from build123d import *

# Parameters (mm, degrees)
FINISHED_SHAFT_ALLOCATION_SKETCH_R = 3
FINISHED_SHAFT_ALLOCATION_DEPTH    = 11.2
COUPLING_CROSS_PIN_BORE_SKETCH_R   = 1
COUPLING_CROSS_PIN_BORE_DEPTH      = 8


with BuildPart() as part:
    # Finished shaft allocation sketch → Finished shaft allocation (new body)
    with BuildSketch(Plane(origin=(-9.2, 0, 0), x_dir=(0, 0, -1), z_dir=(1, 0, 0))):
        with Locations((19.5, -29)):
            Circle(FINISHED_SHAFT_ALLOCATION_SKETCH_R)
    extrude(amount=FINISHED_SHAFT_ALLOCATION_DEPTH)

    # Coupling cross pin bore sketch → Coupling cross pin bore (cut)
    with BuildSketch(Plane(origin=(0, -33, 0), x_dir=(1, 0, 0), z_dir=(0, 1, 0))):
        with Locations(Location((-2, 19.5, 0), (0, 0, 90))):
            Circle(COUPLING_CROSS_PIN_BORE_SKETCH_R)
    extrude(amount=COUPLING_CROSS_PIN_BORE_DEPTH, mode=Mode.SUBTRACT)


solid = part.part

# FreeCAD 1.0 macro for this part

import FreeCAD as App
import Part
import Sketcher

V = App.Vector

doc = App.newDocument("Part")
params = doc.addObject("Spreadsheet::Sheet", "Params")
for row, (alias, value) in enumerate([
    ("sketch1_diameter", "6 mm"),
    ("pad1_length", "11.2 mm"),
    ("sketch2_diameter", "2 mm"),
    ("pocket1_length", "8 mm"),
], start=1):
    params.set(f"A{row}", alias)
    params.set(f"B{row}", "=" + value)
    params.setAlias(f"B{row}", alias)

body = doc.addObject("PartDesign::Body", "Body")

# Sketch on YZ plane
sketch1 = body.newObject("Sketcher::SketchObject", "Sketch")
sketch1.AttachmentSupport = (doc.getObject("YZ_Plane"), [""])
sketch1.MapMode = "FlatFace"
sketch1.AttachmentOffset = App.Placement(V(0, 0, -9.2), App.Rotation())
sketch1.addGeometry(Part.Circle(V(-29, -19.5, 0), V(0, 0, 1), 3), False)
sketch1.addConstraint([
    Sketcher.Constraint("Diameter", 0, 6.0),
    Sketcher.Constraint("DistanceX", 0, 3, -1, 1, 29.0),
    Sketcher.Constraint("DistanceY", 0, 3, -1, 1, 19.5),
])
sketch1.setExpression("Constraints[0]", "Params.sketch1_diameter")
pad1 = body.newObject("PartDesign::Pad", "Pad")
pad1.Profile = sketch1
pad1.setExpression("Length", "Params.pad1_length")

# Sketch on XZ plane
sketch2 = body.newObject("Sketcher::SketchObject", "Sketch001")
sketch2.AttachmentSupport = (doc.getObject("XZ_Plane"), [""])
sketch2.MapMode = "FlatFace"
sketch2.AttachmentOffset = App.Placement(V(0, 0, 33), App.Rotation())
sketch2.addGeometry(Part.Circle(V(-2, -19.5, 0), V(0, 0, 1), 1), False)
sketch2.addConstraint([
    Sketcher.Constraint("Diameter", 0, 2.0),
    Sketcher.Constraint("DistanceX", 0, 3, -1, 1, 2.0),
    Sketcher.Constraint("DistanceY", 0, 3, -1, 1, 19.5),
])
sketch2.setExpression("Constraints[0]", "Params.sketch2_diameter")
pocket1 = body.newObject("PartDesign::Pocket", "Pocket")
pocket1.Profile = sketch2
pocket1.setExpression("Length", "Params.pocket1_length")

doc.recompute()
